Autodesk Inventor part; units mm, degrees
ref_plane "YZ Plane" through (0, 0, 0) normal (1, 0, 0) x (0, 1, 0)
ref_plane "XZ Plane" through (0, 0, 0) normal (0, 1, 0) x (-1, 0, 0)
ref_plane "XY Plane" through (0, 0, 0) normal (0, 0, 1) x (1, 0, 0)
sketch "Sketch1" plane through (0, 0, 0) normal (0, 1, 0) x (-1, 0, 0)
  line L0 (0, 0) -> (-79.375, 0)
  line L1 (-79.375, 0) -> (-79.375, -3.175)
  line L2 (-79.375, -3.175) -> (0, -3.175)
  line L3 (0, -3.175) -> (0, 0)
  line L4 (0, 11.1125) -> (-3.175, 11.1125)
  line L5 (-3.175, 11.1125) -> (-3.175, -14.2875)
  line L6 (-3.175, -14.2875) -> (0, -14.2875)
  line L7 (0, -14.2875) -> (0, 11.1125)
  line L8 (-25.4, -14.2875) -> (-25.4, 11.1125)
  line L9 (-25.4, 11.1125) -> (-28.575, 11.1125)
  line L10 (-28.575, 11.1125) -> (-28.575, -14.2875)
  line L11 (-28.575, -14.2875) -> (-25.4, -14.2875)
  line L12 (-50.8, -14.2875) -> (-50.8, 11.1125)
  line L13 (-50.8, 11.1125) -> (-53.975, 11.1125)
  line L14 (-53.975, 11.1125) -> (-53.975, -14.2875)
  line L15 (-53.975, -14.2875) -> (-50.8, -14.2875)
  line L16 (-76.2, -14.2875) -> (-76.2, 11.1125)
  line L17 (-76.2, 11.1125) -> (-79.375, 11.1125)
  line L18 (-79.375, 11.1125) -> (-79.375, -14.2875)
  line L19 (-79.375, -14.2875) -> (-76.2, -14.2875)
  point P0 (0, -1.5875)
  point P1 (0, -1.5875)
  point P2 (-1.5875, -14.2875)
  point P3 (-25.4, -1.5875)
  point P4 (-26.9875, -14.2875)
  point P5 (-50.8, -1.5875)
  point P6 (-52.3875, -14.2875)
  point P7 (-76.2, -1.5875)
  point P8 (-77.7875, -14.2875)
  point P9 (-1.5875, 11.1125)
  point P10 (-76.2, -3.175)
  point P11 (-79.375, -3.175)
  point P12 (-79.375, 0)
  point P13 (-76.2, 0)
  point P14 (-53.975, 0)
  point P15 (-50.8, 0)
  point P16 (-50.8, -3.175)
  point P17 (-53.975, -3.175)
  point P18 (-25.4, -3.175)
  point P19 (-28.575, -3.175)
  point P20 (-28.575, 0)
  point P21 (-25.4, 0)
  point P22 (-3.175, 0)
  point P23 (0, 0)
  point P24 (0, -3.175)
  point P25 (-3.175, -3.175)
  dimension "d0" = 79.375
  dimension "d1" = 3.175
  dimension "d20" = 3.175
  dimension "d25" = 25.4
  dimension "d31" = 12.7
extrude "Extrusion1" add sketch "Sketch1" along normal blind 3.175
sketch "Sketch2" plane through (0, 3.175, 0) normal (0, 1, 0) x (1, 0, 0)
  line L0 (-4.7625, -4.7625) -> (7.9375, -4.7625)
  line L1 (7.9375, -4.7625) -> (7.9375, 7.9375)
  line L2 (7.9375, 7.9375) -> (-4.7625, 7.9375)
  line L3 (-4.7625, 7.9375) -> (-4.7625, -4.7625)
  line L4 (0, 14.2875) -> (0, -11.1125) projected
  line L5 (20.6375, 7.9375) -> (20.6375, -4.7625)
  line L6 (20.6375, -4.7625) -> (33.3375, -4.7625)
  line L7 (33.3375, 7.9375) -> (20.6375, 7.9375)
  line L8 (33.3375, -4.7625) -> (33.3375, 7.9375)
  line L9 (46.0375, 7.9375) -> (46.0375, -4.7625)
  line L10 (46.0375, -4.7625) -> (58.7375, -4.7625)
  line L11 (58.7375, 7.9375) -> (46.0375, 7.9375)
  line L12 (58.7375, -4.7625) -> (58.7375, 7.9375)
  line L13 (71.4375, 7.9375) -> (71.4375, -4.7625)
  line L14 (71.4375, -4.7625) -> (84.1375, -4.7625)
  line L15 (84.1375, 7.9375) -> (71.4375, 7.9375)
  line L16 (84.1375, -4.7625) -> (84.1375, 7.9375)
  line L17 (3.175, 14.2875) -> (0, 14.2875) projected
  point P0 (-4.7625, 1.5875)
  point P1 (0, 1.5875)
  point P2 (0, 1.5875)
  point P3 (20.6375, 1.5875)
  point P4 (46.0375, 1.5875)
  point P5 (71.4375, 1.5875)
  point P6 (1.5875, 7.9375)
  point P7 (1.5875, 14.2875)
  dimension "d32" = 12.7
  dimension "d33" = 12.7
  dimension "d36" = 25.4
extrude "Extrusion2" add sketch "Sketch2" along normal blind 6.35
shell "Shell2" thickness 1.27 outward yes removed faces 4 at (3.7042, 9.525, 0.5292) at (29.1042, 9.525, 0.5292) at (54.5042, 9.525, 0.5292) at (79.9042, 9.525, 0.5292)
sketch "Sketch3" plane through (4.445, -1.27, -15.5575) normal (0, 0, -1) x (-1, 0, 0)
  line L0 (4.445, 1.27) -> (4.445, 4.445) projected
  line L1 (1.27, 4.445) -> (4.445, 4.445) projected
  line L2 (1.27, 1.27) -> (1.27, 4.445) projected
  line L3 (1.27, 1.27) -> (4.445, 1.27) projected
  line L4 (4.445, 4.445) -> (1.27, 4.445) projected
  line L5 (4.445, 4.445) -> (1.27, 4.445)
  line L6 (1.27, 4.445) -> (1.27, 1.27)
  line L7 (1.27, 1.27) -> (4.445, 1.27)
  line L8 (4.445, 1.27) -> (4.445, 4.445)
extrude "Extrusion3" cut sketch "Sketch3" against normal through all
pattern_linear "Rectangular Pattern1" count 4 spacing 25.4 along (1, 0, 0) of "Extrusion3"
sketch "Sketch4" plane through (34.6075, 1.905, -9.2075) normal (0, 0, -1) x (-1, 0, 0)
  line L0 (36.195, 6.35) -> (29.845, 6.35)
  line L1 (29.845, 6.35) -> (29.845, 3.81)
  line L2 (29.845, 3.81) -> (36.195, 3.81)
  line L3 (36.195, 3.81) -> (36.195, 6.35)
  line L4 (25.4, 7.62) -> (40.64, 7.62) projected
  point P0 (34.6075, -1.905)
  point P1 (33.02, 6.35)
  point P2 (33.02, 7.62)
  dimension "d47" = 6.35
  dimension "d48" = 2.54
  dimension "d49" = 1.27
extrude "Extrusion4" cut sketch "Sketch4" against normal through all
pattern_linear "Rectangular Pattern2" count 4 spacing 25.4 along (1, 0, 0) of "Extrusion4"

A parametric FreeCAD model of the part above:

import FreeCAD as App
import Part
import Sketcher
from FreeCAD import Vector
Q = App.Units.Quantity


def faces_at(feature, points):
    """Names of the faces that lie closest to the given points."""
    faces = feature.Shape.Faces
    near = lambda p: min(range(len(faces)), key=lambda i: faces[i].distToShape(Part.Vertex(*p))[0])
    return sorted({f"Face{near(p) + 1}" for p in points})

doc = App.newDocument("Part")
body = doc.addObject("PartDesign::Body", "Body")

# Sketch on XZ plane
sketch1 = body.newObject("Sketcher::SketchObject", "Sketch")
sketch1.AttachmentSupport = (doc.getObject("XZ_Plane"), [""])
sketch1.MapMode = "FlatFace"
sketch1.addGeometry(Part.LineSegment(Vector(0, 11.1, 0), Vector(3.2, 11.1, 0)), False)
sketch1.addGeometry(Part.LineSegment(Vector(3.2, 11.1, 0), Vector(3.2, 0, 0)), False)
sketch1.addGeometry(Part.LineSegment(Vector(3.2, 0, 0), Vector(25.4, 0, 0)), False)
sketch1.addGeometry(Part.LineSegment(Vector(25.4, 0, 0), Vector(25.4, 11.1, 0)), False)
sketch1.addGeometry(Part.LineSegment(Vector(25.4, 11.1, 0), Vector(28.6, 11.1, 0)), False)
sketch1.addGeometry(Part.LineSegment(Vector(28.6, 11.1, 0), Vector(28.6, 0, 0)), False)
sketch1.addGeometry(Part.LineSegment(Vector(28.6, 0, 0), Vector(50.8, 0, 0)), False)
sketch1.addGeometry(Part.LineSegment(Vector(50.8, 0, 0), Vector(50.8, 11.1, 0)), False)
sketch1.addGeometry(Part.LineSegment(Vector(50.8, 11.1, 0), Vector(54, 11.1, 0)), False)
sketch1.addGeometry(Part.LineSegment(Vector(54, 11.1, 0), Vector(54, 0, 0)), False)
sketch1.addGeometry(Part.LineSegment(Vector(54, 0, 0), Vector(76.2, 0, 0)), False)
sketch1.addGeometry(Part.LineSegment(Vector(76.2, 0, 0), Vector(76.2, 11.1, 0)), False)
sketch1.addGeometry(Part.LineSegment(Vector(76.2, 11.1, 0), Vector(79.4, 11.1, 0)), False)
sketch1.addGeometry(Part.LineSegment(Vector(79.4, 11.1, 0), Vector(79.4, -14.3, 0)), False)
sketch1.addGeometry(Part.LineSegment(Vector(79.4, -14.3, 0), Vector(76.2, -14.3, 0)), False)
sketch1.addGeometry(Part.LineSegment(Vector(76.2, -14.3, 0), Vector(76.2, -3.2, 0)), False)
sketch1.addGeometry(Part.LineSegment(Vector(76.2, -3.2, 0), Vector(54, -3.2, 0)), False)
sketch1.addGeometry(Part.LineSegment(Vector(54, -3.2, 0), Vector(54, -14.3, 0)), False)
sketch1.addGeometry(Part.LineSegment(Vector(54, -14.3, 0), Vector(50.8, -14.3, 0)), False)
sketch1.addGeometry(Part.LineSegment(Vector(50.8, -14.3, 0), Vector(50.8, -3.2, 0)), False)
sketch1.addGeometry(Part.LineSegment(Vector(50.8, -3.2, 0), Vector(28.6, -3.2, 0)), False)
sketch1.addGeometry(Part.LineSegment(Vector(28.6, -3.2, 0), Vector(28.6, -14.3, 0)), False)
sketch1.addGeometry(Part.LineSegment(Vector(28.6, -14.3, 0), Vector(25.4, -14.3, 0)), False)
sketch1.addGeometry(Part.LineSegment(Vector(25.4, -14.3, 0), Vector(25.4, -3.2, 0)), False)
sketch1.addGeometry(Part.LineSegment(Vector(25.4, -3.2, 0), Vector(3.2, -3.2, 0)), False)
sketch1.addGeometry(Part.LineSegment(Vector(3.2, -3.2, 0), Vector(3.2, -14.3, 0)), False)
sketch1.addGeometry(Part.LineSegment(Vector(3.2, -14.3, 0), Vector(0, -14.3, 0)), False)
sketch1.addGeometry(Part.LineSegment(Vector(0, -14.3, 0), Vector(0, 11.1, 0)), False)
sketch1.addConstraint(Sketcher.Constraint("Coincident", 0, 2, 1, 1))
sketch1.addConstraint(Sketcher.Constraint("Coincident", 1, 2, 2, 1))
sketch1.addConstraint(Sketcher.Constraint("Coincident", 2, 2, 3, 1))
sketch1.addConstraint(Sketcher.Constraint("Coincident", 3, 2, 4, 1))
sketch1.addConstraint(Sketcher.Constraint("Coincident", 4, 2, 5, 1))
sketch1.addConstraint(Sketcher.Constraint("Coincident", 5, 2, 6, 1))
sketch1.addConstraint(Sketcher.Constraint("Coincident", 6, 2, 7, 1))
sketch1.addConstraint(Sketcher.Constraint("Coincident", 7, 2, 8, 1))
sketch1.addConstraint(Sketcher.Constraint("Coincident", 8, 2, 9, 1))
sketch1.addConstraint(Sketcher.Constraint("Coincident", 9, 2, 10, 1))
sketch1.addConstraint(Sketcher.Constraint("Coincident", 10, 2, 11, 1))
sketch1.addConstraint(Sketcher.Constraint("Coincident", 11, 2, 12, 1))
sketch1.addConstraint(Sketcher.Constraint("Coincident", 12, 2, 13, 1))
sketch1.addConstraint(Sketcher.Constraint("Coincident", 13, 2, 14, 1))
sketch1.addConstraint(Sketcher.Constraint("Coincident", 14, 2, 15, 1))
sketch1.addConstraint(Sketcher.Constraint("Coincident", 15, 2, 16, 1))
sketch1.addConstraint(Sketcher.Constraint("Coincident", 16, 2, 17, 1))
sketch1.addConstraint(Sketcher.Constraint("Coincident", 17, 2, 18, 1))
sketch1.addConstraint(Sketcher.Constraint("Coincident", 18, 2, 19, 1))
sketch1.addConstraint(Sketcher.Constraint("Coincident", 19, 2, 20, 1))
sketch1.addConstraint(Sketcher.Constraint("Coincident", 20, 2, 21, 1))
sketch1.addConstraint(Sketcher.Constraint("Coincident", 21, 2, 22, 1))
sketch1.addConstraint(Sketcher.Constraint("Coincident", 22, 2, 23, 1))
sketch1.addConstraint(Sketcher.Constraint("Coincident", 23, 2, 24, 1))
sketch1.addConstraint(Sketcher.Constraint("Coincident", 24, 2, 25, 1))
sketch1.addConstraint(Sketcher.Constraint("Coincident", 25, 2, 26, 1))
sketch1.addConstraint(Sketcher.Constraint("Coincident", 26, 2, 27, 1))
sketch1.addConstraint(Sketcher.Constraint("Coincident", 27, 2, 0, 1))
sketch1.addConstraint(Sketcher.Constraint("Horizontal", 0))
sketch1.addConstraint(Sketcher.Constraint("Vertical", 1))
sketch1.addConstraint(Sketcher.Constraint("Horizontal", 2))
sketch1.addConstraint(Sketcher.Constraint("Vertical", 3))
sketch1.addConstraint(Sketcher.Constraint("Horizontal", 4))
sketch1.addConstraint(Sketcher.Constraint("Vertical", 5))
sketch1.addConstraint(Sketcher.Constraint("Horizontal", 6))
sketch1.addConstraint(Sketcher.Constraint("Vertical", 7))
sketch1.addConstraint(Sketcher.Constraint("Horizontal", 8))
sketch1.addConstraint(Sketcher.Constraint("Vertical", 9))
sketch1.addConstraint(Sketcher.Constraint("Horizontal", 10))
sketch1.addConstraint(Sketcher.Constraint("Vertical", 11))
sketch1.addConstraint(Sketcher.Constraint("Horizontal", 12))
sketch1.addConstraint(Sketcher.Constraint("Vertical", 13))
sketch1.addConstraint(Sketcher.Constraint("Horizontal", 14))
sketch1.addConstraint(Sketcher.Constraint("Vertical", 15))
sketch1.addConstraint(Sketcher.Constraint("Horizontal", 16))
sketch1.addConstraint(Sketcher.Constraint("Vertical", 17))
sketch1.addConstraint(Sketcher.Constraint("Horizontal", 18))
sketch1.addConstraint(Sketcher.Constraint("Vertical", 19))
sketch1.addConstraint(Sketcher.Constraint("Horizontal", 20))
sketch1.addConstraint(Sketcher.Constraint("Vertical", 21))
sketch1.addConstraint(Sketcher.Constraint("Horizontal", 22))
sketch1.addConstraint(Sketcher.Constraint("Vertical", 23))
sketch1.addConstraint(Sketcher.Constraint("Horizontal", 24))
sketch1.addConstraint(Sketcher.Constraint("Vertical", 25))
sketch1.addConstraint(Sketcher.Constraint("Horizontal", 26))
sketch1.addConstraint(Sketcher.Constraint("Vertical", 27))
sketch1.addConstraint(Sketcher.Constraint("PointOnObject", 1, 2, -1))
sketch1.addConstraint(Sketcher.Constraint("PointOnObject", 5, 2, -1))
sketch1.addConstraint(Sketcher.Constraint("PointOnObject", 9, 2, -1))
sketch1.addConstraint(Sketcher.Constraint("PointOnObject", 26, 2, -2))
sketch1.addConstraint(Sketcher.Constraint("Horizontal", 0, 2, 3, 2))
sketch1.addConstraint(Sketcher.Constraint("Horizontal", 4, 2, 7, 2))
sketch1.addConstraint(Sketcher.Constraint("Horizontal", 8, 2, 11, 2))
sketch1.addConstraint(Sketcher.Constraint("Horizontal", 14, 2, 17, 2))
sketch1.addConstraint(Sketcher.Constraint("Horizontal", 16, 2, 19, 2))
sketch1.addConstraint(Sketcher.Constraint("Horizontal", 18, 2, 21, 2))
sketch1.addConstraint(Sketcher.Constraint("Horizontal", 20, 2, 23, 2))
sketch1.addConstraint(Sketcher.Constraint("Horizontal", 22, 2, 25, 2))
sketch1.addConstraint(Sketcher.Constraint("Vertical", 11, 2, 14, 2))
sketch1.addConstraint(Sketcher.Constraint("Vertical", 9, 2, 16, 2))
sketch1.addConstraint(Sketcher.Constraint("Vertical", 7, 2, 18, 2))
sketch1.addConstraint(Sketcher.Constraint("Vertical", 5, 2, 20, 2))
sketch1.addConstraint(Sketcher.Constraint("Vertical", 3, 2, 22, 2))
sketch1.addConstraint(Sketcher.Constraint("Vertical", 1, 2, 24, 2))
sketch1.addConstraint(Sketcher.Constraint("Equal", 0, 4))
sketch1.addConstraint(Sketcher.Constraint("Equal", 2, 6))
sketch1.addConstraint(Sketcher.Constraint("Equal", 4, 8))
sketch1.addConstraint(Sketcher.Constraint("Equal", 6, 10))
sketch1.addConstraint(Sketcher.Constraint("Equal", 8, 12))
sketch1.addConstraint(Sketcher.Constraint("Equal", 11, 15))
sketch1.addConstraint(Sketcher.Constraint("DistanceY", 13, 2, 13, 1, Q("1 in")))
sketch1.addConstraint(Sketcher.Constraint("DistanceX", -1, 1, 2, 2, Q("1 in")))
sketch1.addConstraint(Sketcher.Constraint("DistanceX", 0, 1, 0, 2, Q("0.125 in")))
sketch1.addConstraint(Sketcher.Constraint("DistanceY", 15, 2, -1, 1, Q("0.125 in")))
pad1 = body.newObject("PartDesign::Pad", "Pad")
pad1.Profile = sketch1
pad1.Length = Q("0.125 in")
pad1.Reversed = True

# Sketch on XZ plane
sketch2 = body.newObject("Sketcher::SketchObject", "Sketch001")
sketch2.AttachmentSupport = (doc.getObject("XZ_Plane"), [""])
sketch2.MapMode = "FlatFace"
sketch2.AttachmentOffset = App.Placement(Vector(0, 0, -0.125 * 25.4), App.Rotation())
sketch2.addGeometry(Part.LineSegment(Vector(-5, -8, 0), Vector(-5, 5, 0)), False)
sketch2.addGeometry(Part.LineSegment(Vector(-5, 5, 0), Vector(8, 5, 0)), False)
sketch2.addGeometry(Part.LineSegment(Vector(8, 5, 0), Vector(8, -8, 0)), False)
sketch2.addGeometry(Part.LineSegment(Vector(8, -8, 0), Vector(-5, -8, 0)), False)
sketch2.addGeometry(Part.LineSegment(Vector(33, -8, 0), Vector(21, -8, 0)), False)
sketch2.addGeometry(Part.LineSegment(Vector(21, -8, 0), Vector(21, 5, 0)), False)
sketch2.addGeometry(Part.LineSegment(Vector(21, 5, 0), Vector(33, 5, 0)), False)
sketch2.addGeometry(Part.LineSegment(Vector(33, 5, 0), Vector(33, -8, 0)), False)
sketch2.addGeometry(Part.LineSegment(Vector(59, -8, 0), Vector(46, -8, 0)), False)
sketch2.addGeometry(Part.LineSegment(Vector(46, -8, 0), Vector(46, 5, 0)), False)
sketch2.addGeometry(Part.LineSegment(Vector(46, 5, 0), Vector(59, 5, 0)), False)
sketch2.addGeometry(Part.LineSegment(Vector(59, 5, 0), Vector(59, -8, 0)), False)
sketch2.addGeometry(Part.LineSegment(Vector(84, -8, 0), Vector(71, -8, 0)), False)
sketch2.addGeometry(Part.LineSegment(Vector(71, -8, 0), Vector(71, 5, 0)), False)
sketch2.addGeometry(Part.LineSegment(Vector(71, 5, 0), Vector(84, 5, 0)), False)
sketch2.addGeometry(Part.LineSegment(Vector(84, 5, 0), Vector(84, -8, 0)), False)
sketch2.addConstraint(Sketcher.Constraint("Coincident", 0, 2, 1, 1))
sketch2.addConstraint(Sketcher.Constraint("Coincident", 1, 2, 2, 1))
sketch2.addConstraint(Sketcher.Constraint("Coincident", 2, 2, 3, 1))
sketch2.addConstraint(Sketcher.Constraint("Coincident", 3, 2, 0, 1))
sketch2.addConstraint(Sketcher.Constraint("Coincident", 4, 2, 5, 1))
sketch2.addConstraint(Sketcher.Constraint("Coincident", 5, 2, 6, 1))
sketch2.addConstraint(Sketcher.Constraint("Coincident", 6, 2, 7, 1))
sketch2.addConstraint(Sketcher.Constraint("Coincident", 7, 2, 4, 1))
sketch2.addConstraint(Sketcher.Constraint("Coincident", 8, 2, 9, 1))
sketch2.addConstraint(Sketcher.Constraint("Coincident", 9, 2, 10, 1))
sketch2.addConstraint(Sketcher.Constraint("Coincident", 10, 2, 11, 1))
sketch2.addConstraint(Sketcher.Constraint("Coincident", 11, 2, 8, 1))
sketch2.addConstraint(Sketcher.Constraint("Coincident", 12, 2, 13, 1))
sketch2.addConstraint(Sketcher.Constraint("Coincident", 13, 2, 14, 1))
sketch2.addConstraint(Sketcher.Constraint("Coincident", 14, 2, 15, 1))
sketch2.addConstraint(Sketcher.Constraint("Coincident", 15, 2, 12, 1))
sketch2.addConstraint(Sketcher.Constraint("Vertical", 0))
sketch2.addConstraint(Sketcher.Constraint("Horizontal", 1))
sketch2.addConstraint(Sketcher.Constraint("Vertical", 2))
sketch2.addConstraint(Sketcher.Constraint("Horizontal", 3))
sketch2.addConstraint(Sketcher.Constraint("Horizontal", 4))
sketch2.addConstraint(Sketcher.Constraint("Vertical", 5))
sketch2.addConstraint(Sketcher.Constraint("Horizontal", 6))
sketch2.addConstraint(Sketcher.Constraint("Vertical", 7))
sketch2.addConstraint(Sketcher.Constraint("Horizontal", 8))
sketch2.addConstraint(Sketcher.Constraint("Vertical", 9))
sketch2.addConstraint(Sketcher.Constraint("Horizontal", 10))
sketch2.addConstraint(Sketcher.Constraint("Vertical", 11))
sketch2.addConstraint(Sketcher.Constraint("Horizontal", 12))
sketch2.addConstraint(Sketcher.Constraint("Vertical", 13))
sketch2.addConstraint(Sketcher.Constraint("Horizontal", 14))
sketch2.addConstraint(Sketcher.Constraint("Vertical", 15))
sketch2.addConstraint(Sketcher.Constraint("Horizontal", 3, 2, 4, 2))
sketch2.addConstraint(Sketcher.Constraint("Horizontal", 1, 2, 5, 2))
sketch2.addConstraint(Sketcher.Constraint("Horizontal", 7, 2, 8, 2))
sketch2.addConstraint(Sketcher.Constraint("Horizontal", 6, 2, 9, 2))
sketch2.addConstraint(Sketcher.Constraint("Horizontal", 11, 2, 12, 2))
sketch2.addConstraint(Sketcher.Constraint("Horizontal", 10, 2, 13, 2))
sketch2.addConstraint(Sketcher.Constraint("Equal", 3, 4))
sketch2.addConstraint(Sketcher.Constraint("Equal", 6, 8))
sketch2.addConstraint(Sketcher.Constraint("Equal", 10, 12))
sketch2.addConstraint(Sketcher.Constraint("Equal", 14, 0))
sketch2.addConstraint(Sketcher.Constraint("DistanceX", 1, 1, 1, 2, Q("0.5 in")))
sketch2.addConstraint(Sketcher.Constraint("DistanceX", 3, 2, 4, 2, Q("1 in")))
sketch2.addConstraint(Sketcher.Constraint("DistanceX", 4, 2, 8, 2, Q("1 in")))
sketch2.addConstraint(Sketcher.Constraint("DistanceX", 8, 2, 12, 2, Q("1 in")))
sketch2.addConstraint(Sketcher.Constraint("DistanceX", 0, 2, -1, 1, Q("0.1875 in")))
sketch2.addConstraint(Sketcher.Constraint("DistanceY", -1, 1, 0, 2, Q("0.1875 in")))
pad2 = body.newObject("PartDesign::Pad", "Pad001")
pad2.Profile = sketch2
pad2.Length = Q("0.25 in")
pad2.Reversed = True
doc.recompute()

thickness = body.newObject("PartDesign::Thickness", "Thickness")
thickness.Base = (pad2, faces_at(pad2, [
    (3.704, 9.525, 0.529),
    (29.104, 9.525, 0.529),
    (54.504, 9.525, 0.529),
    (79.904, 9.525, 0.529),
]))
thickness.Value = Q("0.05 in")
thickness.Reversed = False
thickness.Join = "Intersection"

# Sketch on XY plane
sketch3 = body.newObject("Sketcher::SketchObject", "Sketch002")
sketch3.AttachmentSupport = (doc.getObject("XY_Plane"), [""])
sketch3.MapMode = "FlatFace"
sketch3.AttachmentOffset = App.Placement(Vector(0, 0, -0.6125 * 25.4), App.Rotation())
sketch3.addGeometry(Part.LineSegment(Vector(3.2, 0, 0), Vector(0, 0, 0)), False)
sketch3.addGeometry(Part.LineSegment(Vector(0, 0, 0), Vector(0, 3.2, 0)), False)
sketch3.addGeometry(Part.LineSegment(Vector(0, 3.2, 0), Vector(3.2, 3.2, 0)), False)
sketch3.addGeometry(Part.LineSegment(Vector(3.2, 3.2, 0), Vector(3.2, 0, 0)), False)
sketch3.addConstraint(Sketcher.Constraint("Coincident", 0, 2, 1, 1))
sketch3.addConstraint(Sketcher.Constraint("Coincident", 1, 2, 2, 1))
sketch3.addConstraint(Sketcher.Constraint("Coincident", 2, 2, 3, 1))
sketch3.addConstraint(Sketcher.Constraint("Coincident", 3, 2, 0, 1))
sketch3.addConstraint(Sketcher.Constraint("Horizontal", 0))
sketch3.addConstraint(Sketcher.Constraint("Vertical", 1))
sketch3.addConstraint(Sketcher.Constraint("Horizontal", 2))
sketch3.addConstraint(Sketcher.Constraint("Vertical", 3))
sketch3.addConstraint(Sketcher.Constraint("Coincident", 0, 2, -1, 1))
sketch3.addConstraint(Sketcher.Constraint("Equal", 2, 1))
sketch3.addConstraint(Sketcher.Constraint("DistanceX", 0, 2, 0, 1, Q("0.125 in")))
pocket1 = body.newObject("PartDesign::Pocket", "Pocket")
pocket1.Profile = sketch3
pocket1.Type = "ThroughAll"
pocket1.Reversed = True
doc.recompute()

linearpattern = body.newObject("PartDesign::LinearPattern", "LinearPattern")
linearpattern.Originals = [pocket1]
linearpattern.Direction = (doc.getObject("X_Axis"), [""])
linearpattern.Mode = "offset"
linearpattern.Offset = Q("1 in")
linearpattern.Occurrences = 4
body.Tip = linearpattern

# Sketch on XY plane
sketch4 = body.newObject("Sketcher::SketchObject", "Sketch003")
sketch4.AttachmentSupport = (doc.getObject("XY_Plane"), [""])
sketch4.MapMode = "FlatFace"
sketch4.AttachmentOffset = App.Placement(Vector(0, 0, -0.3625 * 25.4), App.Rotation())
sketch4.addGeometry(Part.LineSegment(Vector(-1.6, 5.7, 0), Vector(-1.6, 8.3, 0)), False)
sketch4.addGeometry(Part.LineSegment(Vector(-1.6, 8.3, 0), Vector(4.8, 8.3, 0)), False)
sketch4.addGeometry(Part.LineSegment(Vector(4.8, 8.3, 0), Vector(4.8, 5.7, 0)), False)
sketch4.addGeometry(Part.LineSegment(Vector(4.8, 5.7, 0), Vector(-1.6, 5.7, 0)), False)
sketch4.addConstraint(Sketcher.Constraint("Coincident", 0, 2, 1, 1))
sketch4.addConstraint(Sketcher.Constraint("Coincident", 1, 2, 2, 1))
sketch4.addConstraint(Sketcher.Constraint("Coincident", 2, 2, 3, 1))
sketch4.addConstraint(Sketcher.Constraint("Coincident", 3, 2, 0, 1))
sketch4.addConstraint(Sketcher.Constraint("Vertical", 0))
sketch4.addConstraint(Sketcher.Constraint("Horizontal", 1))
sketch4.addConstraint(Sketcher.Constraint("Vertical", 2))
sketch4.addConstraint(Sketcher.Constraint("Horizontal", 3))
sketch4.addConstraint(Sketcher.Constraint("DistanceY", 0, 1, 0, 2, Q("0.1 in")))
sketch4.addConstraint(Sketcher.Constraint("DistanceX", 1, 1, 1, 2, Q("0.25 in")))
sketch4.addConstraint(Sketcher.Constraint("DistanceX", 0, 2, -1, 1, Q("0.0625 in")))
sketch4.addConstraint(Sketcher.Constraint("DistanceY", -1, 1, 0, 2, Q("0.325 in")))
pocket2 = body.newObject("PartDesign::Pocket", "Pocket001")
pocket2.Profile = sketch4
pocket2.Type = "ThroughAll"
pocket2.Reversed = True
doc.recompute()

linearpattern2 = body.newObject("PartDesign::LinearPattern", "LinearPattern001")
linearpattern2.Originals = [pocket2]
linearpattern2.Direction = (doc.getObject("X_Axis"), [""])
linearpattern2.Mode = "offset"
linearpattern2.Offset = Q("1 in")
linearpattern2.Occurrences = 4
body.Tip = linearpattern2

doc.recompute()
